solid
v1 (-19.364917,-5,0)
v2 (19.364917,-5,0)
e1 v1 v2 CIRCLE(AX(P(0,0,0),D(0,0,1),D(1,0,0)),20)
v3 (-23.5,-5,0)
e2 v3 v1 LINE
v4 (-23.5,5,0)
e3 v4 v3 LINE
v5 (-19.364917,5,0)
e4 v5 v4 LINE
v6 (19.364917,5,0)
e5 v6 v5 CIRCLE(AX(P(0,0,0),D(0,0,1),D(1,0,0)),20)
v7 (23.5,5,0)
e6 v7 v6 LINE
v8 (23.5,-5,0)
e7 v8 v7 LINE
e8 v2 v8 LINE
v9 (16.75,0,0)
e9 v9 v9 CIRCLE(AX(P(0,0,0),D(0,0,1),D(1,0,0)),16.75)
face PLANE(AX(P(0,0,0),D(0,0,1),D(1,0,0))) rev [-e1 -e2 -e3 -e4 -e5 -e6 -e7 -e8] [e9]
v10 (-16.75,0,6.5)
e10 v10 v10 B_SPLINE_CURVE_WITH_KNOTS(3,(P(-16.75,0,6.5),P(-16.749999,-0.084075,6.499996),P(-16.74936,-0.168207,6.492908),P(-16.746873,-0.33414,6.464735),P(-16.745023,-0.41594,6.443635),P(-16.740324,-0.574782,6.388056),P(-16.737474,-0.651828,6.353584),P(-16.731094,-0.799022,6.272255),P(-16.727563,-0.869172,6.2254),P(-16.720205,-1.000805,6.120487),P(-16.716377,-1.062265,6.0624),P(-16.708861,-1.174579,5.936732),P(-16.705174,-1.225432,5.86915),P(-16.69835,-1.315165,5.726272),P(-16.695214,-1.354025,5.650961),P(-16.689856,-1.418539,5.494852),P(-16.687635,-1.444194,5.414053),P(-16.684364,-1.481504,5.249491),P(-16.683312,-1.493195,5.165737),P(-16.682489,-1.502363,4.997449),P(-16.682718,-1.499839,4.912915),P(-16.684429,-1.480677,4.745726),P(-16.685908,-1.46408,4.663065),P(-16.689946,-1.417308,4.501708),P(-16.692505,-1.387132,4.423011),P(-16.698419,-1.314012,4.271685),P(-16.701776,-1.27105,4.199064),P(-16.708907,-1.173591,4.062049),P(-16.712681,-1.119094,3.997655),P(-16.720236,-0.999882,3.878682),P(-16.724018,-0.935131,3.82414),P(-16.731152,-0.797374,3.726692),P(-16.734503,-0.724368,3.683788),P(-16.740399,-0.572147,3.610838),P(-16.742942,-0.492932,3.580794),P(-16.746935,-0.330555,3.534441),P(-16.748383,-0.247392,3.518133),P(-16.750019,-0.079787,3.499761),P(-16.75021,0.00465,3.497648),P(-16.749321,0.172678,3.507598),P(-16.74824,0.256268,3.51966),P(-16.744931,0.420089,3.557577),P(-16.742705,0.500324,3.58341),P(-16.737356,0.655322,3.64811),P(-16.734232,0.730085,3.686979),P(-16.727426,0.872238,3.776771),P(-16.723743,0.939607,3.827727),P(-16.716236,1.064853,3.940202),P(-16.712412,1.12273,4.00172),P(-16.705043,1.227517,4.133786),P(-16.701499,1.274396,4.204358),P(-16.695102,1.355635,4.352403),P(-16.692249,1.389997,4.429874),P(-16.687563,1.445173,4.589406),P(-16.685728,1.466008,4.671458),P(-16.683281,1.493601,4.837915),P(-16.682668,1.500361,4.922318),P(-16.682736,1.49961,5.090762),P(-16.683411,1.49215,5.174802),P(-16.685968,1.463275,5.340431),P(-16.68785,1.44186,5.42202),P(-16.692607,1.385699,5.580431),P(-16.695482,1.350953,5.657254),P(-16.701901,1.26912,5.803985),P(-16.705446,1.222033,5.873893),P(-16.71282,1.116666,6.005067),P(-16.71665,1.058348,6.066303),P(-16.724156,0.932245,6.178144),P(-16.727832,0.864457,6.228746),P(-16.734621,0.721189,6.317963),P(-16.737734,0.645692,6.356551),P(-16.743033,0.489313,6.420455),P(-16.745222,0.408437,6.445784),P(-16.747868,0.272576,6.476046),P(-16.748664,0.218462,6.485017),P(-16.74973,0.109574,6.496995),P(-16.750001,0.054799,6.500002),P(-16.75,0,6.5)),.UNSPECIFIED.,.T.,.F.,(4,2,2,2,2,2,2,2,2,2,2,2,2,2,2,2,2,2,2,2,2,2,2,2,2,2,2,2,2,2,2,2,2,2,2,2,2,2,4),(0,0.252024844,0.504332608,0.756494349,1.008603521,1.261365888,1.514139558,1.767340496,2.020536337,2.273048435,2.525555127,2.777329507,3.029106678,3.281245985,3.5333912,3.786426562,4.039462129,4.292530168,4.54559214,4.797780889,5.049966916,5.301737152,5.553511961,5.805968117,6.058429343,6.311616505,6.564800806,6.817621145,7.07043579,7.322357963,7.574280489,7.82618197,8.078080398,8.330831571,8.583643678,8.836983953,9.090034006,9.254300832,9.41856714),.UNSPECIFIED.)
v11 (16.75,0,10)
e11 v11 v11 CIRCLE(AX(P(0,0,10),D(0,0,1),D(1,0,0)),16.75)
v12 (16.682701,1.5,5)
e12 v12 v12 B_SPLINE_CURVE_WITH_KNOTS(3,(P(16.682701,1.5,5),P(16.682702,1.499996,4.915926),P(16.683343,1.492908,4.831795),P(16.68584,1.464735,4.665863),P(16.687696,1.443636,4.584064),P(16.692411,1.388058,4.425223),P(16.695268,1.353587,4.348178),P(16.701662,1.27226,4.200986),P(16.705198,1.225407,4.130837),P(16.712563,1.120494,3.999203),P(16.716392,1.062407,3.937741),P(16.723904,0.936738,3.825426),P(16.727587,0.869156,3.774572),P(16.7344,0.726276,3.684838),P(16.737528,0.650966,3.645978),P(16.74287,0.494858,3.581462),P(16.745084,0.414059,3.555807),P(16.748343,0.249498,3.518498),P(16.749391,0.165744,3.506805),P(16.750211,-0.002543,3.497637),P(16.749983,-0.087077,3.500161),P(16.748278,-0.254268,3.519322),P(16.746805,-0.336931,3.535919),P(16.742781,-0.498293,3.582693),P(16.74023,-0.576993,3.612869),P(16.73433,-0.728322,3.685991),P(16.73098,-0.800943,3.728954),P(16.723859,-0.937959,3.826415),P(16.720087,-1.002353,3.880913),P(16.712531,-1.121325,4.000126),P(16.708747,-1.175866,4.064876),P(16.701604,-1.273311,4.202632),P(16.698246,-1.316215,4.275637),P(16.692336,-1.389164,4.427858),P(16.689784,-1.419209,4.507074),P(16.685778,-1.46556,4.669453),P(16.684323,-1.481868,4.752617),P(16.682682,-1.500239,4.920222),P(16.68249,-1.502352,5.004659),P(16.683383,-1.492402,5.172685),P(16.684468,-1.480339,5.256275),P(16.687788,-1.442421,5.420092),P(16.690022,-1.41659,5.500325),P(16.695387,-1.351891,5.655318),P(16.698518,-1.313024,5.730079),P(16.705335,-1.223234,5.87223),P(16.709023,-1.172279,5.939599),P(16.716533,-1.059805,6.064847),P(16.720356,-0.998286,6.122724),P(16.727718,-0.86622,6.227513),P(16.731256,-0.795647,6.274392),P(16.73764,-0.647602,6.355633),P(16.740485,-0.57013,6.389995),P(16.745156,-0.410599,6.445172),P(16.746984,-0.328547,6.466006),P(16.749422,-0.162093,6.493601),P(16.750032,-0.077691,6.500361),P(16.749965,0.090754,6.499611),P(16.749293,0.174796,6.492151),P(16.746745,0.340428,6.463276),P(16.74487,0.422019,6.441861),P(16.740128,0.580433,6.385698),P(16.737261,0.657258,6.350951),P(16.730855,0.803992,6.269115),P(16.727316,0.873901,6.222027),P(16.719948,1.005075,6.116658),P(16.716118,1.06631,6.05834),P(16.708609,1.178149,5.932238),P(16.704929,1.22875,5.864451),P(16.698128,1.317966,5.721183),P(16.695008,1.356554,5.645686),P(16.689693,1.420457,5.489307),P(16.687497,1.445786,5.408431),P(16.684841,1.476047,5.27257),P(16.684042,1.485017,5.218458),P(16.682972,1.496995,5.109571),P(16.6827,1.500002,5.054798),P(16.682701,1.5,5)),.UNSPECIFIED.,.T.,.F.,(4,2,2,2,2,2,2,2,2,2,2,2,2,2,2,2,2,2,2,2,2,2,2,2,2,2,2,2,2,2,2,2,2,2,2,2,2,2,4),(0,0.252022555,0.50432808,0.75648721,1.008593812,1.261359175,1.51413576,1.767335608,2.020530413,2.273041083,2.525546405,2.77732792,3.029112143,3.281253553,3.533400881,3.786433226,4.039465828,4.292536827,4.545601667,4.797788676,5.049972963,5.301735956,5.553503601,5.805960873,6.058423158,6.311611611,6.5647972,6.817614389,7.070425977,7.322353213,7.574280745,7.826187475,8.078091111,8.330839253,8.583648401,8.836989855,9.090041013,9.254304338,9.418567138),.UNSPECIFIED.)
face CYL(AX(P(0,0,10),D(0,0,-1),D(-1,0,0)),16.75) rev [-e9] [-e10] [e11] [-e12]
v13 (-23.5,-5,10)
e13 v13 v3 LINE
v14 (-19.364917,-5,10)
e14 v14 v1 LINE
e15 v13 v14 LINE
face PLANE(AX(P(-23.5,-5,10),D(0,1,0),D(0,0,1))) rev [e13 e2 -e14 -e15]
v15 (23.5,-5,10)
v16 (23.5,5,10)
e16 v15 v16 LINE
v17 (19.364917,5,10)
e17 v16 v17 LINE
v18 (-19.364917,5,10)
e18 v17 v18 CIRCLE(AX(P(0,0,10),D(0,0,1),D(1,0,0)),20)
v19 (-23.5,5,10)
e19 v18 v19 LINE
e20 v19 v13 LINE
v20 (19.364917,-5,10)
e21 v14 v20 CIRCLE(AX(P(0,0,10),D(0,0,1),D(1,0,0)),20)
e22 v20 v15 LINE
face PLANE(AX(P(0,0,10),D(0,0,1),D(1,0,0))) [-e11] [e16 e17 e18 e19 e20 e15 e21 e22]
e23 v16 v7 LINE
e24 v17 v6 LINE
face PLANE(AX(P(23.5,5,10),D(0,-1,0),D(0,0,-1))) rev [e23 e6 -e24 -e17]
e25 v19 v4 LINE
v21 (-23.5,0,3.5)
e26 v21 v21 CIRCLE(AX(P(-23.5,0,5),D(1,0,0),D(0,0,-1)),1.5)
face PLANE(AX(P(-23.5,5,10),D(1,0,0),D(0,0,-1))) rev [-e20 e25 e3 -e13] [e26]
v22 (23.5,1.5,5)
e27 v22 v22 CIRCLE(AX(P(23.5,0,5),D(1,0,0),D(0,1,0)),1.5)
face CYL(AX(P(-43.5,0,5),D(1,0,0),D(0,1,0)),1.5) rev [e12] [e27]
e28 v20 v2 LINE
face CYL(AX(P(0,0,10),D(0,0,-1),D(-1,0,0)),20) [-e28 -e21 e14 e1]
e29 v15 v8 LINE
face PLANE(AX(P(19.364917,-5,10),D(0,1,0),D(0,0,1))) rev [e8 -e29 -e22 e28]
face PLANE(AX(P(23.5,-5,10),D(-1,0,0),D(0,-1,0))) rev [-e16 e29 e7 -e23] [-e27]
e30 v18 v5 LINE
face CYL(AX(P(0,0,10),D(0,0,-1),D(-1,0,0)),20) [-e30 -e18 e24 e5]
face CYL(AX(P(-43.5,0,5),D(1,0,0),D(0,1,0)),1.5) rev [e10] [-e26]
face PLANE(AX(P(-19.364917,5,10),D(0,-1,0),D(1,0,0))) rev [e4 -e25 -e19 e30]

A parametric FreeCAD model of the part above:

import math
import FreeCAD as App
import Part
import Sketcher

doc = App.newDocument("Part")
body = doc.addObject("PartDesign::Body", "Body")

# Sketch on XY plane
sketch1 = body.newObject("Sketcher::SketchObject", "Sketch")
sketch1.AttachmentSupport = (doc.getObject("XY_Plane"), [""])
sketch1.MapMode = "FlatFace"
sketch1.addGeometry(Part.LineSegment(App.Vector(-23.5, -5, 0), App.Vector(-19.364917, -5, 0)), False)
sketch1.addGeometry(Part.ArcOfCircle(Part.Circle(App.Vector(0, 0, 0), App.Vector(0, 0, 1), 20), math.radians(-165.522488), math.radians(-14.477512)), False)
sketch1.addGeometry(Part.LineSegment(App.Vector(19.364917, -5, 0), App.Vector(23.5, -5, 0)), False)
sketch1.addGeometry(Part.LineSegment(App.Vector(23.5, -5, 0), App.Vector(23.5, 5, 0)), False)
sketch1.addGeometry(Part.LineSegment(App.Vector(23.5, 5, 0), App.Vector(19.364917, 5, 0)), False)
sketch1.addGeometry(Part.ArcOfCircle(Part.Circle(App.Vector(0, 0, 0), App.Vector(0, 0, 1), 20), math.radians(14.477512), math.radians(165.522488)), False)
sketch1.addGeometry(Part.LineSegment(App.Vector(-19.364917, 5, 0), App.Vector(-23.5, 5, 0)), False)
sketch1.addGeometry(Part.LineSegment(App.Vector(-23.5, 5, 0), App.Vector(-23.5, -5, 0)), False)
sketch1.addGeometry(Part.Circle(App.Vector(0, 0, 0), App.Vector(0, 0, 1), 16.75), False)
sketch1.addConstraint(Sketcher.Constraint("Coincident", 0, 2, 1, 1))
sketch1.addConstraint(Sketcher.Constraint("Coincident", 1, 2, 2, 1))
sketch1.addConstraint(Sketcher.Constraint("Coincident", 2, 2, 3, 1))
sketch1.addConstraint(Sketcher.Constraint("Coincident", 3, 2, 4, 1))
sketch1.addConstraint(Sketcher.Constraint("Coincident", 4, 2, 5, 1))
sketch1.addConstraint(Sketcher.Constraint("Coincident", 5, 2, 6, 1))
sketch1.addConstraint(Sketcher.Constraint("Coincident", 6, 2, 7, 1))
sketch1.addConstraint(Sketcher.Constraint("Coincident", 7, 2, 0, 1))
sketch1.addConstraint(Sketcher.Constraint("Horizontal", 0))
sketch1.addConstraint(Sketcher.Constraint("Horizontal", 2))
sketch1.addConstraint(Sketcher.Constraint("Vertical", 3))
sketch1.addConstraint(Sketcher.Constraint("Horizontal", 4))
sketch1.addConstraint(Sketcher.Constraint("Horizontal", 6))
sketch1.addConstraint(Sketcher.Constraint("Vertical", 7))
sketch1.addConstraint(Sketcher.Constraint("Coincident", 1, 3, -1, 1))
sketch1.addConstraint(Sketcher.Constraint("Coincident", 5, 3, -1, 1))
sketch1.addConstraint(Sketcher.Constraint("Coincident", 8, 3, -1, 1))
sketch1.addConstraint(Sketcher.Constraint("Equal", 1, 5))
sketch1.addConstraint(Sketcher.Constraint("Symmetric", 2, 2, 6, 2, -1, 1))
sketch1.addConstraint(Sketcher.Constraint("Horizontal", 0, 2, 1, 2))
sketch1.addConstraint(Sketcher.Constraint("Horizontal", 4, 2, 5, 2))
sketch1.addConstraint(Sketcher.Constraint("Radius", 1, 20.0))
sketch1.addConstraint(Sketcher.Constraint("Diameter", 8, 33.5))
sketch1.addConstraint(Sketcher.Constraint("DistanceY", 3, 1, 3, 2, 10.0))
sketch1.addConstraint(Sketcher.Constraint("DistanceX", -1, 1, 2, 2, 23.5))
pad1 = body.newObject("PartDesign::Pad", "Pad")
pad1.Profile = sketch1
pad1.Length = 10

# Sketch on YZ plane
sketch2 = body.newObject("Sketcher::SketchObject", "Sketch001")
sketch2.AttachmentSupport = (doc.getObject("YZ_Plane"), [""])
sketch2.MapMode = "FlatFace"
sketch2.AttachmentOffset = App.Placement(App.Vector(0, 0, 23.5), App.Rotation())
sketch2.addGeometry(Part.Circle(App.Vector(0, 5, 0), App.Vector(0, 0, 1), 1.5), False)
sketch2.addConstraint(Sketcher.Constraint("PointOnObject", 0, 3, -2))
sketch2.addConstraint(Sketcher.Constraint("Diameter", 0, 3.0))
sketch2.addConstraint(Sketcher.Constraint("DistanceY", -1, 1, 0, 3, 5.0))
pocket1 = body.newObject("PartDesign::Pocket", "Pocket")
pocket1.Profile = sketch2
pocket1.Length = 67

doc.recompute()
